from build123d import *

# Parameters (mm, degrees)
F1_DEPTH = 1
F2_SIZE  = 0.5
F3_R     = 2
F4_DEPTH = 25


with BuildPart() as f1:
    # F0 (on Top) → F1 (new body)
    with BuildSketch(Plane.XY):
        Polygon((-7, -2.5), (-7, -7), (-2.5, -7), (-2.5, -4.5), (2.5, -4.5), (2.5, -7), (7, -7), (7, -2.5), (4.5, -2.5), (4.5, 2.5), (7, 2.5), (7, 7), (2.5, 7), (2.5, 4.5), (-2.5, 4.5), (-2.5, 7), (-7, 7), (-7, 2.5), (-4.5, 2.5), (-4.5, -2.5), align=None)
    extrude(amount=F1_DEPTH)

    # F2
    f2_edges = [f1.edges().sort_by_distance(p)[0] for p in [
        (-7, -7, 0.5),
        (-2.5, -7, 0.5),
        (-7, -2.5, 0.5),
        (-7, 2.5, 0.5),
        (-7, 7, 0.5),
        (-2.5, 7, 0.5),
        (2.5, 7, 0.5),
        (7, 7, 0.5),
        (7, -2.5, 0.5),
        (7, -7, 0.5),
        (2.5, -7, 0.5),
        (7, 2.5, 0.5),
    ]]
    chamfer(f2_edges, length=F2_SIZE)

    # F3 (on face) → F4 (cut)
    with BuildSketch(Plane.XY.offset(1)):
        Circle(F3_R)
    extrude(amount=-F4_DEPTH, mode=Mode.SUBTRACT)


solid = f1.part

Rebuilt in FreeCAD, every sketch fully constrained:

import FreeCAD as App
import Part
import Sketcher
from FreeCAD import Vector


def edges_at(feature, points):
    """Names of the edges that pass closest to the given points."""
    edges = feature.Shape.Edges
    near = lambda p: min(range(len(edges)), key=lambda i: edges[i].distToShape(Part.Vertex(*p))[0])
    return sorted({f"Edge{near(p) + 1}" for p in points})


def add_polygon(sketch, points):
    """Adds a closed chain of lines whose ends are joined by coincident constraints."""
    first, n = sketch.GeometryCount, len(points)
    for a, b in zip(points, points[1:] + points[:1]):
        sketch.addGeometry(Part.LineSegment(App.Vector(*a, 0), App.Vector(*b, 0)), False)
    for i in range(n):
        sketch.addConstraint(Sketcher.Constraint("Coincident", first + i, 2, first + (i + 1) % n, 1))

doc = App.newDocument("Part")
body = doc.addObject("PartDesign::Body", "Body")

# Sketch on XY plane
sketch1 = body.newObject("Sketcher::SketchObject", "Sketch")
sketch1.AttachmentSupport = (doc.getObject("XY_Plane"), [""])
sketch1.MapMode = "FlatFace"
add_polygon(sketch1, [(-7, -2.5), (-7, -7), (-2.5, -7), (-2.5, -4.5), (2.5, -4.5), (2.5, -7), (7, -7), (7, -2.5), (4.5, -2.5), (4.5, 2.5), (7, 2.5), (7, 7), (2.5, 7), (2.5, 4.5), (-2.5, 4.5), (-2.5, 7), (-7, 7), (-7, 2.5), (-4.5, 2.5), (-4.5, -2.5)])  # lines 0-19
sketch1.addConstraint([
    Sketcher.Constraint("Vertical", 0),
    Sketcher.Constraint("Horizontal", 1),
    Sketcher.Constraint("Vertical", 2),
    Sketcher.Constraint("Horizontal", 3),
    Sketcher.Constraint("Vertical", 4),
    Sketcher.Constraint("Horizontal", 5),
    Sketcher.Constraint("Vertical", 6),
    Sketcher.Constraint("Horizontal", 7),
    Sketcher.Constraint("Vertical", 8),
    Sketcher.Constraint("Horizontal", 9),
    Sketcher.Constraint("Vertical", 10),
    Sketcher.Constraint("Horizontal", 11),
    Sketcher.Constraint("Vertical", 12),
    Sketcher.Constraint("Horizontal", 13),
    Sketcher.Constraint("Vertical", 14),
    Sketcher.Constraint("Horizontal", 15),
    Sketcher.Constraint("Vertical", 16),
    Sketcher.Constraint("Horizontal", 17),
    Sketcher.Constraint("Vertical", 18),
    Sketcher.Constraint("Horizontal", 19),
    Sketcher.Constraint("Symmetric", 0, 2, 10, 2, -1, 1),
    Sketcher.Constraint("Symmetric", 2, 2, 12, 2, -1, 1),
    Sketcher.Constraint("Symmetric", 4, 2, 14, 2, -1, 1),
    Sketcher.Constraint("Symmetric", 6, 2, 16, 2, -1, 1),
    Sketcher.Constraint("Symmetric", 8, 2, 18, 2, -1, 1),
    Sketcher.Constraint("Symmetric", 1, 2, 4, 2, -2),
    Sketcher.Constraint("Symmetric", 9, 2, 16, 2, -2),
    Sketcher.Constraint("Equal", 15, 0),
    Sketcher.Constraint("Equal", 19, 2),
    Sketcher.Constraint("Equal", 13, 8),
    Sketcher.Constraint("DistanceX", 3, 1, 3, 2, 5.0),
    Sketcher.Constraint("DistanceX", 1, 1, 1, 2, 4.5),
    Sketcher.Constraint("DistanceX", 7, 2, 7, 1, 2.5),
])
pad1 = body.newObject("PartDesign::Pad", "Pad")
pad1.Profile = sketch1
pad1.Length = 1
doc.recompute()

chamfer = body.newObject("PartDesign::Chamfer", "Chamfer")
chamfer.Base = (pad1, edges_at(pad1, [
    (-7, -7, 0.5),
    (-2.5, -7, 0.5),
    (-7, -2.5, 0.5),
    (-7, 2.5, 0.5),
    (-7, 7, 0.5),
    (-2.5, 7, 0.5),
    (2.5, 7, 0.5),
    (7, 7, 0.5),
    (7, -2.5, 0.5),
    (7, -7, 0.5),
    (2.5, -7, 0.5),
    (7, 2.5, 0.5),
]))
chamfer.Size = 0.5

# Sketch on XY plane
sketch2 = body.newObject("Sketcher::SketchObject", "Sketch001")
sketch2.AttachmentSupport = (doc.getObject("XY_Plane"), [""])
sketch2.MapMode = "FlatFace"
sketch2.AttachmentOffset = App.Placement(Vector(0, 0, 1), App.Rotation())
sketch2.addGeometry(Part.Circle(Vector(0, 0, 0), Vector(0, 0, 1), 2), False)
sketch2.addConstraint([
    Sketcher.Constraint("Coincident", 0, 3, -1, 1),
    Sketcher.Constraint("Diameter", 0, 4.0),
])
pocket1 = body.newObject("PartDesign::Pocket", "Pocket")
pocket1.Profile = sketch2
pocket1.Length = 25

doc.recompute()
